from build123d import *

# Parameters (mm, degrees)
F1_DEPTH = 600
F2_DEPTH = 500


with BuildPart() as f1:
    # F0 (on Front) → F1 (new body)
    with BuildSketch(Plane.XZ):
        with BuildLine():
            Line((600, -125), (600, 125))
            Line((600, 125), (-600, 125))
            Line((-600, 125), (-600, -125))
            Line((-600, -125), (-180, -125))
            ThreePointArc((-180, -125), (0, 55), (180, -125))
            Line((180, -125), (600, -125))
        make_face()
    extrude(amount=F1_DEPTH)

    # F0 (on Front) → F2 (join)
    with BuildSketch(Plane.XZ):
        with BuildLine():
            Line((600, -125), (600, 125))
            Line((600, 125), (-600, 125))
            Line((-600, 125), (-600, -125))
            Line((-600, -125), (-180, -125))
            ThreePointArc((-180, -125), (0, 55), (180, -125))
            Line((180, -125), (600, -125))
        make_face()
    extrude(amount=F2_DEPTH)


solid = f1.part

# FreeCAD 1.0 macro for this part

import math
import FreeCAD as App
import Part
import Sketcher
from FreeCAD import Vector

doc = App.newDocument("Part")
params = doc.addObject("Spreadsheet::Sheet", "Params")
for row, (alias, value) in enumerate([
    ("sketch1_radius", "180 mm"),
    ("sketch1_width", "1200 mm"),
    ("sketch1_height", "250 mm"),
    ("pad1_length", "600 mm"),
    ("sketch2_radius", "180 mm"),
    ("sketch2_width", "1200 mm"),
    ("sketch2_height", "250 mm"),
    ("pad2_length", "500 mm"),
], start=1):
    params.set(f"A{row}", alias)
    params.set(f"B{row}", "=" + value)
    params.setAlias(f"B{row}", alias)

body = doc.addObject("PartDesign::Body", "Body")

# Sketch on XZ plane
sketch1 = body.newObject("Sketcher::SketchObject", "Sketch")
sketch1.AttachmentSupport = (doc.getObject("XZ_Plane"), [""])
sketch1.MapMode = "FlatFace"
sketch1.addGeometry(Part.LineSegment(Vector(600, -125, 0), Vector(600, 125, 0)), False)
sketch1.addGeometry(Part.LineSegment(Vector(600, 125, 0), Vector(-600, 125, 0)), False)
sketch1.addGeometry(Part.LineSegment(Vector(-600, 125, 0), Vector(-600, -125, 0)), False)
sketch1.addGeometry(Part.LineSegment(Vector(-600, -125, 0), Vector(-180, -125, 0)), False)
sketch1.addGeometry(Part.ArcOfCircle(Part.Circle(Vector(0, -125, 0), Vector(0, 0, 1), 180), math.radians(0), math.radians(180)), False)
sketch1.addGeometry(Part.LineSegment(Vector(180, -125, 0), Vector(600, -125, 0)), False)
sketch1.addConstraint(Sketcher.Constraint("Coincident", 0, 2, 1, 1))
sketch1.addConstraint(Sketcher.Constraint("Coincident", 1, 2, 2, 1))
sketch1.addConstraint(Sketcher.Constraint("Coincident", 2, 2, 3, 1))
sketch1.addConstraint(Sketcher.Constraint("Coincident", 3, 2, 4, 2))
sketch1.addConstraint(Sketcher.Constraint("Coincident", 4, 1, 5, 1))
sketch1.addConstraint(Sketcher.Constraint("Coincident", 5, 2, 0, 1))
sketch1.addConstraint(Sketcher.Constraint("Vertical", 0))
sketch1.addConstraint(Sketcher.Constraint("Horizontal", 1))
sketch1.addConstraint(Sketcher.Constraint("Vertical", 2))
sketch1.addConstraint(Sketcher.Constraint("Horizontal", 3))
sketch1.addConstraint(Sketcher.Constraint("Horizontal", 5))
sketch1.addConstraint(Sketcher.Constraint("Symmetric", 0, 2, 2, 2, -1, 1))
sketch1.addConstraint(Sketcher.Constraint("Symmetric", 3, 2, 4, 1, -2))
sketch1.addConstraint(Sketcher.Constraint("Horizontal", 4, 3, 2, 2))
sketch1.addConstraint(Sketcher.Constraint("Radius", 4, 180.0))
sketch1.addConstraint(Sketcher.Constraint("DistanceX", 1, 2, 1, 1, 1200.0))
sketch1.addConstraint(Sketcher.Constraint("DistanceY", 0, 1, 0, 2, 250.0))
sketch1.setExpression("Constraints[14]", "Params.sketch1_radius")
sketch1.setExpression("Constraints[15]", "Params.sketch1_width")
sketch1.setExpression("Constraints[16]", "Params.sketch1_height")
pad1 = body.newObject("PartDesign::Pad", "Pad")
pad1.Profile = sketch1
pad1.setExpression("Length", "Params.pad1_length")

# Sketch on XZ plane
sketch2 = body.newObject("Sketcher::SketchObject", "Sketch001")
sketch2.AttachmentSupport = (doc.getObject("XZ_Plane"), [""])
sketch2.MapMode = "FlatFace"
sketch2.addGeometry(Part.LineSegment(Vector(600, -125, 0), Vector(600, 125, 0)), False)
sketch2.addGeometry(Part.LineSegment(Vector(600, 125, 0), Vector(-600, 125, 0)), False)
sketch2.addGeometry(Part.LineSegment(Vector(-600, 125, 0), Vector(-600, -125, 0)), False)
sketch2.addGeometry(Part.LineSegment(Vector(-600, -125, 0), Vector(-180, -125, 0)), False)
sketch2.addGeometry(Part.ArcOfCircle(Part.Circle(Vector(0, -125, 0), Vector(0, 0, 1), 180), math.radians(0), math.radians(180)), False)
sketch2.addGeometry(Part.LineSegment(Vector(180, -125, 0), Vector(600, -125, 0)), False)
sketch2.addConstraint(Sketcher.Constraint("Coincident", 0, 2, 1, 1))
sketch2.addConstraint(Sketcher.Constraint("Coincident", 1, 2, 2, 1))
sketch2.addConstraint(Sketcher.Constraint("Coincident", 2, 2, 3, 1))
sketch2.addConstraint(Sketcher.Constraint("Coincident", 3, 2, 4, 2))
sketch2.addConstraint(Sketcher.Constraint("Coincident", 4, 1, 5, 1))
sketch2.addConstraint(Sketcher.Constraint("Coincident", 5, 2, 0, 1))
sketch2.addConstraint(Sketcher.Constraint("Vertical", 0))
sketch2.addConstraint(Sketcher.Constraint("Horizontal", 1))
sketch2.addConstraint(Sketcher.Constraint("Vertical", 2))
sketch2.addConstraint(Sketcher.Constraint("Horizontal", 3))
sketch2.addConstraint(Sketcher.Constraint("Horizontal", 5))
sketch2.addConstraint(Sketcher.Constraint("Symmetric", 0, 2, 2, 2, -1, 1))
sketch2.addConstraint(Sketcher.Constraint("Symmetric", 3, 2, 4, 1, -2))
sketch2.addConstraint(Sketcher.Constraint("Horizontal", 4, 3, 2, 2))
sketch2.addConstraint(Sketcher.Constraint("Radius", 4, 180.0))
sketch2.addConstraint(Sketcher.Constraint("DistanceX", 1, 2, 1, 1, 1200.0))
sketch2.addConstraint(Sketcher.Constraint("DistanceY", 0, 1, 0, 2, 250.0))
sketch2.setExpression("Constraints[14]", "Params.sketch2_radius")
sketch2.setExpression("Constraints[15]", "Params.sketch2_width")
sketch2.setExpression("Constraints[16]", "Params.sketch2_height")
pad2 = body.newObject("PartDesign::Pad", "Pad001")
pad2.Profile = sketch2
pad2.setExpression("Length", "Params.pad2_length")

doc.recompute()
